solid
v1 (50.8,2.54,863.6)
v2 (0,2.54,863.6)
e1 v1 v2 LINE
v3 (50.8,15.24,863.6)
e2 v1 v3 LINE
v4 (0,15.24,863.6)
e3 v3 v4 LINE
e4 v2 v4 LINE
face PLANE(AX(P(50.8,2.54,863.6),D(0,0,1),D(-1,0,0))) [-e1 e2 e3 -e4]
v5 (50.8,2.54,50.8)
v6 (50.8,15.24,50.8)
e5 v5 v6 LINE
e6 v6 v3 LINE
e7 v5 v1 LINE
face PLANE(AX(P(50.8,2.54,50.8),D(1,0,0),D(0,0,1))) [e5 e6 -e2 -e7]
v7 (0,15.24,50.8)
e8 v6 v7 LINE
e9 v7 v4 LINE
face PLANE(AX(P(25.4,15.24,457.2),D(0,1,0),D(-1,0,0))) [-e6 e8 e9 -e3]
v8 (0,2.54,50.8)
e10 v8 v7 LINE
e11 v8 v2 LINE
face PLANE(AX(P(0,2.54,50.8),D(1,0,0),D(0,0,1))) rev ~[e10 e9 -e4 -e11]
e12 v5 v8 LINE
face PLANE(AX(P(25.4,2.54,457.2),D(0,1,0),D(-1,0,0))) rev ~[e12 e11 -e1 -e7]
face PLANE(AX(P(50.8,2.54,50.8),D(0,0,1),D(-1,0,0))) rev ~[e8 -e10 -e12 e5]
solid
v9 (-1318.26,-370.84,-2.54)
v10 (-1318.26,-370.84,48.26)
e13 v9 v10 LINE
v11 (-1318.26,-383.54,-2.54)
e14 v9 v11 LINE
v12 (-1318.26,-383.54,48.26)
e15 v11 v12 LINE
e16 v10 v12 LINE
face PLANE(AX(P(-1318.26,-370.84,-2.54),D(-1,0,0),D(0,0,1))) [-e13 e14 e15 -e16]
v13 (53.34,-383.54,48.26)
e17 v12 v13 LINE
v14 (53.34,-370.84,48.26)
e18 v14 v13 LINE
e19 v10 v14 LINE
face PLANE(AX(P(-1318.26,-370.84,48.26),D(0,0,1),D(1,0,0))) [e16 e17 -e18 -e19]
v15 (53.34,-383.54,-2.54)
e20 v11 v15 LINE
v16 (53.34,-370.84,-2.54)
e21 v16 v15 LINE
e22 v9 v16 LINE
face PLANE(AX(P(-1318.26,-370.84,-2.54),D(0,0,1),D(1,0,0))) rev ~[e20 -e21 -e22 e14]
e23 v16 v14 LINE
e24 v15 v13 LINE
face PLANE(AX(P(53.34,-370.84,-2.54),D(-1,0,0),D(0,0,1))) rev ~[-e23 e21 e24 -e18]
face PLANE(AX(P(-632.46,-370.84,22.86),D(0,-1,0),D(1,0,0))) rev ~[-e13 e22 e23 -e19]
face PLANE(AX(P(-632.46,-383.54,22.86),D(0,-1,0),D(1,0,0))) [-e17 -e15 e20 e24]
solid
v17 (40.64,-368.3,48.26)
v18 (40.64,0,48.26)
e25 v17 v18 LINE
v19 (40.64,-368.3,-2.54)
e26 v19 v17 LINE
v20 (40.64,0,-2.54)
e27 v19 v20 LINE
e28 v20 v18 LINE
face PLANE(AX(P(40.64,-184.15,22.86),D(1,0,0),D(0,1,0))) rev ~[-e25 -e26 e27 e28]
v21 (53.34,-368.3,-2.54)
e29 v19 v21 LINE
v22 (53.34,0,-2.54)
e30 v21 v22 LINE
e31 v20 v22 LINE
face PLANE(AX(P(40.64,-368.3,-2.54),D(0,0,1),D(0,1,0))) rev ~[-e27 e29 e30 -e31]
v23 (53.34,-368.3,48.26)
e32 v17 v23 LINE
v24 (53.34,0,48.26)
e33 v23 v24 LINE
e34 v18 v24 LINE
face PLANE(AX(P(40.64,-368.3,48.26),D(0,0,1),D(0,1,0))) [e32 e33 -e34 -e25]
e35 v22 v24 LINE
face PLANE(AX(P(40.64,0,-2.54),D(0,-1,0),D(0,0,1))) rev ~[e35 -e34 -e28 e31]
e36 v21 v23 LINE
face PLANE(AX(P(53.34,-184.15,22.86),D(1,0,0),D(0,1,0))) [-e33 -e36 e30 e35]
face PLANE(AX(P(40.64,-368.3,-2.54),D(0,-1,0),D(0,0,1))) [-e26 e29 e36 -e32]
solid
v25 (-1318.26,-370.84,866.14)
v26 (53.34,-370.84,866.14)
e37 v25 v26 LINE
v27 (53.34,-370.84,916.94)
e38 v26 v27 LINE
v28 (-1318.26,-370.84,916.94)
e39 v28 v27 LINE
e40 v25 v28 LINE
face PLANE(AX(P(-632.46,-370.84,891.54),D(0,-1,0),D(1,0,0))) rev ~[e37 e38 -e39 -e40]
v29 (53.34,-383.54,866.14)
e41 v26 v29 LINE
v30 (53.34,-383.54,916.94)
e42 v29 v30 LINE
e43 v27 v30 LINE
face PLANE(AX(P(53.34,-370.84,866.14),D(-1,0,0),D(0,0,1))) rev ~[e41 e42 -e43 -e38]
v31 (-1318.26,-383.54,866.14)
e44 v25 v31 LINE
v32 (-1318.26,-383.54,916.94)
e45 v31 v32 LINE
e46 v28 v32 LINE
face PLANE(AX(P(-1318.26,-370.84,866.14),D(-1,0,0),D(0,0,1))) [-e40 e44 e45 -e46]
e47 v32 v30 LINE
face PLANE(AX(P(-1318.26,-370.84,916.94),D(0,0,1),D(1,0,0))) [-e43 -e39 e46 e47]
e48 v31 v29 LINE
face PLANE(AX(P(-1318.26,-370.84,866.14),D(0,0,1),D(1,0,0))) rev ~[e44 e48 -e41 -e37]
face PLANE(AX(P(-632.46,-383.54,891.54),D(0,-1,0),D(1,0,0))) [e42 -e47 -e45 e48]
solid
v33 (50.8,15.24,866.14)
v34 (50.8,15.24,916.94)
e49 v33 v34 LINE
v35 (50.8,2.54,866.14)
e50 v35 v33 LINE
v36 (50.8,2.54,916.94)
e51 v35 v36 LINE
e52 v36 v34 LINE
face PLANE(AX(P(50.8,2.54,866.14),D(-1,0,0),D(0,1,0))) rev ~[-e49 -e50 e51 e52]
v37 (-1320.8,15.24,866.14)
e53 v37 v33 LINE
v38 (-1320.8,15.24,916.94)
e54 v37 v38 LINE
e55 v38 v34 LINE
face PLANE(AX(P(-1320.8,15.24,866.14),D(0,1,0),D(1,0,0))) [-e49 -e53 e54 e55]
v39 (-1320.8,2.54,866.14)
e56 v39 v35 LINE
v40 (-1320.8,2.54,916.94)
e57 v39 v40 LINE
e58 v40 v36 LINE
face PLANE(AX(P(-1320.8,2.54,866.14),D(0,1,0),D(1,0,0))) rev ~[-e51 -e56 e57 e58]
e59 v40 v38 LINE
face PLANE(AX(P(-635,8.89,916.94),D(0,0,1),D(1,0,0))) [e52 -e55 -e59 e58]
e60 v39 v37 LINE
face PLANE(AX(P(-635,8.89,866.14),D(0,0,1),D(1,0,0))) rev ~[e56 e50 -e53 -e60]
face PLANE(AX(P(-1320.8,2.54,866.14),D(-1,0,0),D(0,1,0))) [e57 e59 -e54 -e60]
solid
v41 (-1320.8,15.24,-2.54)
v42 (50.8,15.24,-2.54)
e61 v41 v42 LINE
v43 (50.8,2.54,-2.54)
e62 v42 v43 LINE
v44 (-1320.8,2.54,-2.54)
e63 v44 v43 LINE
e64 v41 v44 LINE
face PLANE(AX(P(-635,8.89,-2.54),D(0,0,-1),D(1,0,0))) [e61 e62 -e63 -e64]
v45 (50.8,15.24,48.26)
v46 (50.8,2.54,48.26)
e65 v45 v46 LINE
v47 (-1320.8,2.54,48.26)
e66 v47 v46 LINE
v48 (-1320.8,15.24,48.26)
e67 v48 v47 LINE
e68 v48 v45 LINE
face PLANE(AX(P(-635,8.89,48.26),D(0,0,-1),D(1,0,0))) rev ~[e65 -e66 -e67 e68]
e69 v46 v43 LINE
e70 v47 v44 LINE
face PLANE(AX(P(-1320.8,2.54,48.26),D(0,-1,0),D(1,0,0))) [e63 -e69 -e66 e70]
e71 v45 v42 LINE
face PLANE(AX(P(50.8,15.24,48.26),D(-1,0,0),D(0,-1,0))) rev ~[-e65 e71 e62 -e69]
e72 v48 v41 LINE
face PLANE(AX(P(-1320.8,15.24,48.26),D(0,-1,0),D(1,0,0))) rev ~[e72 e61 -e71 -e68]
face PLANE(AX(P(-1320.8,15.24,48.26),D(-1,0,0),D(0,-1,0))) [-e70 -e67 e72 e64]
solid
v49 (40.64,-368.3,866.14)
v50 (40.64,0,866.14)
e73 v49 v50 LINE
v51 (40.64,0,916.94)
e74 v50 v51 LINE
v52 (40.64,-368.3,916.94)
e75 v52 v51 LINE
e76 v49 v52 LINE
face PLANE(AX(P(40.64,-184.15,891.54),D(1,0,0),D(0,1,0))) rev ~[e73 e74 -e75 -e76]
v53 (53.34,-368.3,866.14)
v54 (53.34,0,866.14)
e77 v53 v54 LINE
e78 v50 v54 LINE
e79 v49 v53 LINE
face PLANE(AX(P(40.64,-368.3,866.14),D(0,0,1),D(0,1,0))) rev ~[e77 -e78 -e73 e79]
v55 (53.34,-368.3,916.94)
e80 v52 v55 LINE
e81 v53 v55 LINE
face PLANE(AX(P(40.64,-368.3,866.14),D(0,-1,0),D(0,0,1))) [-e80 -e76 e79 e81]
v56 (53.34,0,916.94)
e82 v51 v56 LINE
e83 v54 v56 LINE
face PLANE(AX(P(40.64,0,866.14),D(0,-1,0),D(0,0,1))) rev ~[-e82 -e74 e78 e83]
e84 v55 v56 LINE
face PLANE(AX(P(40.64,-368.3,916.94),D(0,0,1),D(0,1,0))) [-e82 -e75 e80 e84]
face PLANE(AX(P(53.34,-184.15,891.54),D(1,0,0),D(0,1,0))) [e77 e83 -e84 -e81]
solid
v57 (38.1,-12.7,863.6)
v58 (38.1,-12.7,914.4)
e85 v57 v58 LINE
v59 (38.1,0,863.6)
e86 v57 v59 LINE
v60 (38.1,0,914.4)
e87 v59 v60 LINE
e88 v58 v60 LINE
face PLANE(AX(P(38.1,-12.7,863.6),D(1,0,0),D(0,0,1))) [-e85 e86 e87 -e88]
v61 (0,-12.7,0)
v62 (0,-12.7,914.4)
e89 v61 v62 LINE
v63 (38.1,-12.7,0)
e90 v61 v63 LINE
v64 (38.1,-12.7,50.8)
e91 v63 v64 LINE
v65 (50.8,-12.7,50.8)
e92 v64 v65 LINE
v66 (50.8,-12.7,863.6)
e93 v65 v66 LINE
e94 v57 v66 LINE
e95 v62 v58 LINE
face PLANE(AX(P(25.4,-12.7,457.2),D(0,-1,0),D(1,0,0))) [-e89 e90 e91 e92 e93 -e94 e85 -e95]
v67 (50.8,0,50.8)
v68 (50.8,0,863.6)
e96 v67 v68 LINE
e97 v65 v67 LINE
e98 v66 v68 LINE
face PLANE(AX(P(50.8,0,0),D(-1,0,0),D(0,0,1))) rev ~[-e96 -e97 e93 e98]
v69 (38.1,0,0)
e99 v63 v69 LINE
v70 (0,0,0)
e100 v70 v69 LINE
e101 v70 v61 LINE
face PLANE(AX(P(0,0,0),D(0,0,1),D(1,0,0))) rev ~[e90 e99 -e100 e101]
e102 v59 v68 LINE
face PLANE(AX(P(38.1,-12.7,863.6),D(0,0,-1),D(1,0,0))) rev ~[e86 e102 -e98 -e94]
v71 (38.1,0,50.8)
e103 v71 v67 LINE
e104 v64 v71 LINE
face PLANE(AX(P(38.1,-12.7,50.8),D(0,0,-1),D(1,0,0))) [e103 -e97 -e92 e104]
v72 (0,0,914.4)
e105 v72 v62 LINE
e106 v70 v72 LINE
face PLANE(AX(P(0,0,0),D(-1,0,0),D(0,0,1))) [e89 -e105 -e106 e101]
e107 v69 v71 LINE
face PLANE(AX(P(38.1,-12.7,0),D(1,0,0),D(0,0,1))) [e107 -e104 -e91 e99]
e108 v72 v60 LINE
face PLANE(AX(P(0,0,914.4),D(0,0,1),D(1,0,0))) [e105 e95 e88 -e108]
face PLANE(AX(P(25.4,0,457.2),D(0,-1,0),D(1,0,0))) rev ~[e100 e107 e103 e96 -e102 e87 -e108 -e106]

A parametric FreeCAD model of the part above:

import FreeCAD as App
import Part
import Sketcher
Q = App.Units.Quantity

doc = App.newDocument("Part")
body = doc.addObject("PartDesign::Body", "Body")

sketch1 = doc.addObject("Sketcher::SketchObject", "Sketch")
body.addObject(sketch1)
sketch1.AttachmentSupport = (doc.XZ_Plane, [""])
sketch1.MapMode = "FlatFace"
sketch1.addGeometry([
    Part.LineSegment(App.Vector(0, 914, 0), App.Vector(0, 0, 0)),
    Part.LineSegment(App.Vector(0, 0, 0), App.Vector(51, 0, 0)),
    Part.LineSegment(App.Vector(51, 0, 0), App.Vector(51, 914, 0)),
    Part.LineSegment(App.Vector(51, 914, 0), App.Vector(0, 914, 0)),
], False)
sketch1.addConstraint([
    Sketcher.Constraint("Coincident", 0, 2, 1, 1),
    Sketcher.Constraint("Coincident", 1, 2, 2, 1),
    Sketcher.Constraint("Coincident", 2, 2, 3, 1),
    Sketcher.Constraint("Coincident", 3, 2, 0, 1),
    Sketcher.Constraint("Vertical", 0),
    Sketcher.Constraint("Horizontal", 1),
    Sketcher.Constraint("Vertical", 2),
    Sketcher.Constraint("Horizontal", 3),
    Sketcher.Constraint("Coincident", 0, 2, -1, 1),
    Sketcher.Constraint("DistanceX", 1, 1, 1, 2, Q("2 in")),
    Sketcher.Constraint("DistanceY", 0, 2, 0, 1, Q("36 in")),
])
pad1 = doc.addObject("PartDesign::Pad", "Pad")
body.addObject(pad1)
pad1.Profile = sketch1
pad1.Length = Q("0.5 in")

sketch2 = doc.addObject("Sketcher::SketchObject", "Sketch001")
body.addObject(sketch2)
sketch2.AttachmentSupport = (doc.XZ_Plane, [""])
sketch2.MapMode = "FlatFace"
sketch2.AttachmentOffset = App.Placement(App.Vector(0, 0, 0.5 * 25.4), App.Rotation())
sketch2.addGeometry([
    Part.LineSegment(App.Vector(38, 914, 0), App.Vector(38, 864, 0)),
    Part.LineSegment(App.Vector(38, 864, 0), App.Vector(51, 864, 0)),
    Part.LineSegment(App.Vector(51, 864, 0), App.Vector(51, 914, 0)),
    Part.LineSegment(App.Vector(51, 914, 0), App.Vector(38, 914, 0)),
], False)
sketch2.addConstraint([
    Sketcher.Constraint("Coincident", 0, 2, 1, 1),
    Sketcher.Constraint("Coincident", 1, 2, 2, 1),
    Sketcher.Constraint("Coincident", 2, 2, 3, 1),
    Sketcher.Constraint("Coincident", 3, 2, 0, 1),
    Sketcher.Constraint("Vertical", 0),
    Sketcher.Constraint("Horizontal", 1),
    Sketcher.Constraint("Vertical", 2),
    Sketcher.Constraint("Horizontal", 3),
    Sketcher.Constraint("DistanceY", 0, 2, 0, 1, Q("2 in")),
    Sketcher.Constraint("DistanceX", 1, 1, 1, 2, Q("0.5 in")),
    Sketcher.Constraint("DistanceY", -1, 1, 0, 2, Q("34 in")),
    Sketcher.Constraint("DistanceX", -1, 1, 1, 2, Q("2 in")),
])
pocket1 = doc.addObject("PartDesign::Pocket", "Pocket")
body.addObject(pocket1)
pocket1.Profile = sketch2
pocket1.Length = Q("0.5 in")

sketch3 = doc.addObject("Sketcher::SketchObject", "Sketch002")
body.addObject(sketch3)
sketch3.AttachmentSupport = (doc.XZ_Plane, [""])
sketch3.MapMode = "FlatFace"
sketch3.AttachmentOffset = App.Placement(App.Vector(0, 0, 0.5 * 25.4), App.Rotation())
sketch3.addGeometry([
    Part.LineSegment(App.Vector(38, 51, 0), App.Vector(38, 0, 0)),
    Part.LineSegment(App.Vector(38, 0, 0), App.Vector(51, 0, 0)),
    Part.LineSegment(App.Vector(51, 0, 0), App.Vector(51, 51, 0)),
    Part.LineSegment(App.Vector(51, 51, 0), App.Vector(38, 51, 0)),
], False)
sketch3.addConstraint([
    Sketcher.Constraint("Coincident", 0, 2, 1, 1),
    Sketcher.Constraint("Coincident", 1, 2, 2, 1),
    Sketcher.Constraint("Coincident", 2, 2, 3, 1),
    Sketcher.Constraint("Coincident", 3, 2, 0, 1),
    Sketcher.Constraint("Vertical", 0),
    Sketcher.Constraint("Horizontal", 1),
    Sketcher.Constraint("Vertical", 2),
    Sketcher.Constraint("Horizontal", 3),
    Sketcher.Constraint("PointOnObject", 0, 2, -1),
    Sketcher.Constraint("DistanceY", 0, 2, 0, 1, Q("2 in")),
    Sketcher.Constraint("DistanceX", 1, 1, 1, 2, Q("0.5 in")),
    Sketcher.Constraint("DistanceX", -1, 1, 1, 2, Q("2 in")),
])
pocket2 = doc.addObject("PartDesign::Pocket", "Pocket001")
body.addObject(pocket2)
pocket2.Profile = sketch3
pocket2.Length = Q("0.5 in")
body2 = doc.addObject("PartDesign::Body", "Body001")

sketch4 = doc.addObject("Sketcher::SketchObject", "Sketch003")
body2.addObject(sketch4)
sketch4.AttachmentSupport = (doc.getObject("XZ_Plane001"), [""])
sketch4.MapMode = "FlatFace"
sketch4.AttachmentOffset = App.Placement(App.Vector(0, 0, -0.1 * 25.4), App.Rotation())
sketch4.addGeometry([
    Part.LineSegment(App.Vector(51, 864, 0), App.Vector(51, 51, 0)),
    Part.LineSegment(App.Vector(51, 51, 0), App.Vector(0, 51, 0)),
    Part.LineSegment(App.Vector(0, 51, 0), App.Vector(0, 864, 0)),
    Part.LineSegment(App.Vector(0, 864, 0), App.Vector(51, 864, 0)),
], False)
sketch4.addConstraint([
    Sketcher.Constraint("Coincident", 0, 2, 1, 1),
    Sketcher.Constraint("Coincident", 1, 2, 2, 1),
    Sketcher.Constraint("Coincident", 2, 2, 3, 1),
    Sketcher.Constraint("Coincident", 3, 2, 0, 1),
    Sketcher.Constraint("Vertical", 0),
    Sketcher.Constraint("Horizontal", 1),
    Sketcher.Constraint("Vertical", 2),
    Sketcher.Constraint("Horizontal", 3),
    Sketcher.Constraint("PointOnObject", 1, 2, -2),
    Sketcher.Constraint("DistanceX", 1, 2, 1, 1, Q("2 in")),
    Sketcher.Constraint("DistanceY", 0, 2, 0, 1, Q("32 in")),
    Sketcher.Constraint("DistanceY", -1, 1, 0, 2, Q("2 in")),
])
pad2 = doc.addObject("PartDesign::Pad", "Pad001")
body2.addObject(pad2)
pad2.Profile = sketch4
pad2.Length = Q("0.5 in")
pad2.Reversed = True
body3 = doc.addObject("PartDesign::Body", "Body002")

sketch5 = doc.addObject("Sketcher::SketchObject", "Sketch004")
body3.addObject(sketch5)
sketch5.AttachmentSupport = (doc.getObject("XY_Plane002"), [""])
sketch5.MapMode = "FlatFace"
sketch5.AttachmentOffset = App.Placement(App.Vector(0, 0, 1.9 * 25.4), App.Rotation())
sketch5.addGeometry([
    Part.LineSegment(App.Vector(-1321, 3, 0), App.Vector(-1321, 15, 0)),
    Part.LineSegment(App.Vector(-1321, 15, 0), App.Vector(51, 15, 0)),
    Part.LineSegment(App.Vector(51, 15, 0), App.Vector(51, 3, 0)),
    Part.LineSegment(App.Vector(51, 3, 0), App.Vector(-1321, 3, 0)),
], False)
sketch5.addConstraint([
    Sketcher.Constraint("Coincident", 0, 2, 1, 1),
    Sketcher.Constraint("Coincident", 1, 2, 2, 1),
    Sketcher.Constraint("Coincident", 2, 2, 3, 1),
    Sketcher.Constraint("Coincident", 3, 2, 0, 1),
    Sketcher.Constraint("Vertical", 0),
    Sketcher.Constraint("Horizontal", 1),
    Sketcher.Constraint("Vertical", 2),
    Sketcher.Constraint("Horizontal", 3),
    Sketcher.Constraint("DistanceX", 1, 1, 1, 2, Q("54 in")),
    Sketcher.Constraint("DistanceY", 0, 1, 0, 2, Q("0.5 in")),
    Sketcher.Constraint("DistanceX", 0, 2, -1, 1, Q("52 in")),
    Sketcher.Constraint("DistanceY", -1, 1, 0, 2, Q("0.6 in")),
])
pad3 = doc.addObject("PartDesign::Pad", "Pad002")
body3.addObject(pad3)
pad3.Profile = sketch5
pad3.Length = Q("2 in")
pad3.Reversed = True
body4 = doc.addObject("PartDesign::Body", "Body003")

sketch6 = doc.addObject("Sketcher::SketchObject", "Sketch005")
body4.addObject(sketch6)
sketch6.AttachmentSupport = (doc.getObject("XY_Plane003"), [""])
sketch6.MapMode = "FlatFace"
sketch6.AttachmentOffset = App.Placement(App.Vector(0, 0, 34.1 * 25.4), App.Rotation())
sketch6.addGeometry([
    Part.LineSegment(App.Vector(-1321, 15, 0), App.Vector(-1321, 3, 0)),
    Part.LineSegment(App.Vector(-1321, 3, 0), App.Vector(51, 3, 0)),
    Part.LineSegment(App.Vector(51, 3, 0), App.Vector(51, 15, 0)),
    Part.LineSegment(App.Vector(51, 15, 0), App.Vector(-1321, 15, 0)),
], False)
sketch6.addConstraint([
    Sketcher.Constraint("Coincident", 0, 2, 1, 1),
    Sketcher.Constraint("Coincident", 1, 2, 2, 1),
    Sketcher.Constraint("Coincident", 2, 2, 3, 1),
    Sketcher.Constraint("Coincident", 3, 2, 0, 1),
    Sketcher.Constraint("Vertical", 0),
    Sketcher.Constraint("Horizontal", 1),
    Sketcher.Constraint("Vertical", 2),
    Sketcher.Constraint("Horizontal", 3),
    Sketcher.Constraint("DistanceX", 1, 1, 1, 2, Q("54 in")),
    Sketcher.Constraint("DistanceY", 0, 2, 0, 1, Q("0.5 in")),
    Sketcher.Constraint("DistanceX", 0, 2, -1, 1, Q("52 in")),
    Sketcher.Constraint("DistanceY", -1, 1, 0, 2, Q("0.1 in")),
])
pad4 = doc.addObject("PartDesign::Pad", "Pad003")
body4.addObject(pad4)
pad4.Profile = sketch6
pad4.Length = Q("2 in")
body5 = doc.addObject("PartDesign::Body", "Body004")

sketch7 = doc.addObject("Sketcher::SketchObject", "Sketch006")
body5.addObject(sketch7)
sketch7.AttachmentSupport = (doc.getObject("YZ_Plane004"), [""])
sketch7.MapMode = "FlatFace"
sketch7.AttachmentOffset = App.Placement(App.Vector(0, 0, 1.6 * 25.4), App.Rotation())
sketch7.addGeometry([
    Part.LineSegment(App.Vector(-368, 917, 0), App.Vector(-368, 866, 0)),
    Part.LineSegment(App.Vector(-368, 866, 0), App.Vector(0, 866, 0)),
    Part.LineSegment(App.Vector(0, 866, 0), App.Vector(0, 917, 0)),
    Part.LineSegment(App.Vector(0, 917, 0), App.Vector(-368, 917, 0)),
], False)
sketch7.addConstraint([
    Sketcher.Constraint("Coincident", 0, 2, 1, 1),
    Sketcher.Constraint("Coincident", 1, 2, 2, 1),
    Sketcher.Constraint("Coincident", 2, 2, 3, 1),
    Sketcher.Constraint("Coincident", 3, 2, 0, 1),
    Sketcher.Constraint("Vertical", 0),
    Sketcher.Constraint("Horizontal", 1),
    Sketcher.Constraint("Vertical", 2),
    Sketcher.Constraint("Horizontal", 3),
    Sketcher.Constraint("PointOnObject", 1, 2, -2),
    Sketcher.Constraint("DistanceY", 0, 2, 0, 1, Q("2 in")),
    Sketcher.Constraint("DistanceX", 1, 1, 1, 2, Q("14.5 in")),
    Sketcher.Constraint("DistanceY", -1, 1, 0, 2, Q("34.1 in")),
])
pad5 = doc.addObject("PartDesign::Pad", "Pad004")
body5.addObject(pad5)
pad5.Profile = sketch7
pad5.Length = Q("0.5 in")
body6 = doc.addObject("PartDesign::Body", "Body005")

sketch8 = doc.addObject("Sketcher::SketchObject", "Sketch007")
body6.addObject(sketch8)
sketch8.AttachmentSupport = (doc.getObject("YZ_Plane005"), [""])
sketch8.MapMode = "FlatFace"
sketch8.AttachmentOffset = App.Placement(App.Vector(0, 0, 1.6 * 25.4), App.Rotation())
sketch8.addGeometry([
    Part.LineSegment(App.Vector(-368, 48, 0), App.Vector(-368, -3, 0)),
    Part.LineSegment(App.Vector(-368, -3, 0), App.Vector(0, -3, 0)),
    Part.LineSegment(App.Vector(0, -3, 0), App.Vector(0, 48, 0)),
    Part.LineSegment(App.Vector(0, 48, 0), App.Vector(-368, 48, 0)),
], False)
sketch8.addConstraint([
    Sketcher.Constraint("Coincident", 0, 2, 1, 1),
    Sketcher.Constraint("Coincident", 1, 2, 2, 1),
    Sketcher.Constraint("Coincident", 2, 2, 3, 1),
    Sketcher.Constraint("Coincident", 3, 2, 0, 1),
    Sketcher.Constraint("Vertical", 0),
    Sketcher.Constraint("Horizontal", 1),
    Sketcher.Constraint("Vertical", 2),
    Sketcher.Constraint("Horizontal", 3),
    Sketcher.Constraint("PointOnObject", 1, 2, -2),
    Sketcher.Constraint("DistanceY", 0, 2, 0, 1, Q("2 in")),
    Sketcher.Constraint("DistanceX", 1, 1, 1, 2, Q("14.5 in")),
    Sketcher.Constraint("DistanceY", 0, 2, -1, 1, Q("0.1 in")),
])
pad6 = doc.addObject("PartDesign::Pad", "Pad005")
body6.addObject(pad6)
pad6.Profile = sketch8
pad6.Length = Q("0.5 in")
body7 = doc.addObject("PartDesign::Body", "Body006")

sketch9 = doc.addObject("Sketcher::SketchObject", "Sketch008")
body7.addObject(sketch9)
sketch9.AttachmentSupport = (doc.getObject("XZ_Plane006"), [""])
sketch9.MapMode = "FlatFace"
sketch9.AttachmentOffset = App.Placement(App.Vector(0, 0, 14.6 * 25.4), App.Rotation())
sketch9.addGeometry([
    Part.LineSegment(App.Vector(-1318, 917, 0), App.Vector(-1318, 866, 0)),
    Part.LineSegment(App.Vector(-1318, 866, 0), App.Vector(53, 866, 0)),
    Part.LineSegment(App.Vector(53, 866, 0), App.Vector(53, 917, 0)),
    Part.LineSegment(App.Vector(53, 917, 0), App.Vector(-1318, 917, 0)),
], False)
sketch9.addConstraint([
    Sketcher.Constraint("Coincident", 0, 2, 1, 1),
    Sketcher.Constraint("Coincident", 1, 2, 2, 1),
    Sketcher.Constraint("Coincident", 2, 2, 3, 1),
    Sketcher.Constraint("Coincident", 3, 2, 0, 1),
    Sketcher.Constraint("Vertical", 0),
    Sketcher.Constraint("Horizontal", 1),
    Sketcher.Constraint("Vertical", 2),
    Sketcher.Constraint("Horizontal", 3),
    Sketcher.Constraint("DistanceX", 1, 1, 1, 2, Q("54 in")),
    Sketcher.Constraint("DistanceY", 0, 2, 0, 1, Q("2 in")),
    Sketcher.Constraint("DistanceX", 0, 2, -1, 1, Q("51.9 in")),
    Sketcher.Constraint("DistanceY", -1, 1, 0, 2, Q("34.1 in")),
])
pad7 = doc.addObject("PartDesign::Pad", "Pad006")
body7.addObject(pad7)
pad7.Profile = sketch9
pad7.Length = Q("0.5 in")
body8 = doc.addObject("PartDesign::Body", "Body007")

sketch10 = doc.addObject("Sketcher::SketchObject", "Sketch009")
body8.addObject(sketch10)
sketch10.AttachmentSupport = (doc.getObject("XZ_Plane007"), [""])
sketch10.MapMode = "FlatFace"
sketch10.AttachmentOffset = App.Placement(App.Vector(0, 0, 14.6 * 25.4), App.Rotation())
sketch10.addGeometry([
    Part.LineSegment(App.Vector(-1318, 48, 0), App.Vector(-1318, -3, 0)),
    Part.LineSegment(App.Vector(-1318, -3, 0), App.Vector(53, -3, 0)),
    Part.LineSegment(App.Vector(53, -3, 0), App.Vector(53, 48, 0)),
    Part.LineSegment(App.Vector(53, 48, 0), App.Vector(-1318, 48, 0)),
], False)
sketch10.addConstraint([
    Sketcher.Constraint("Coincident", 0, 2, 1, 1),
    Sketcher.Constraint("Coincident", 1, 2, 2, 1),
    Sketcher.Constraint("Coincident", 2, 2, 3, 1),
    Sketcher.Constraint("Coincident", 3, 2, 0, 1),
    Sketcher.Constraint("Vertical", 0),
    Sketcher.Constraint("Horizontal", 1),
    Sketcher.Constraint("Vertical", 2),
    Sketcher.Constraint("Horizontal", 3),
    Sketcher.Constraint("DistanceX", 1, 1, 1, 2, Q("54 in")),
    Sketcher.Constraint("DistanceY", 0, 2, 0, 1, Q("2 in")),
    Sketcher.Constraint("DistanceX", 0, 2, -1, 1, Q("51.9 in")),
    Sketcher.Constraint("DistanceY", 0, 2, -1, 1, Q("0.1 in")),
])
pad8 = doc.addObject("PartDesign::Pad", "Pad007")
body8.addObject(pad8)
pad8.Profile = sketch10
pad8.Length = Q("0.5 in")

doc.recompute()
